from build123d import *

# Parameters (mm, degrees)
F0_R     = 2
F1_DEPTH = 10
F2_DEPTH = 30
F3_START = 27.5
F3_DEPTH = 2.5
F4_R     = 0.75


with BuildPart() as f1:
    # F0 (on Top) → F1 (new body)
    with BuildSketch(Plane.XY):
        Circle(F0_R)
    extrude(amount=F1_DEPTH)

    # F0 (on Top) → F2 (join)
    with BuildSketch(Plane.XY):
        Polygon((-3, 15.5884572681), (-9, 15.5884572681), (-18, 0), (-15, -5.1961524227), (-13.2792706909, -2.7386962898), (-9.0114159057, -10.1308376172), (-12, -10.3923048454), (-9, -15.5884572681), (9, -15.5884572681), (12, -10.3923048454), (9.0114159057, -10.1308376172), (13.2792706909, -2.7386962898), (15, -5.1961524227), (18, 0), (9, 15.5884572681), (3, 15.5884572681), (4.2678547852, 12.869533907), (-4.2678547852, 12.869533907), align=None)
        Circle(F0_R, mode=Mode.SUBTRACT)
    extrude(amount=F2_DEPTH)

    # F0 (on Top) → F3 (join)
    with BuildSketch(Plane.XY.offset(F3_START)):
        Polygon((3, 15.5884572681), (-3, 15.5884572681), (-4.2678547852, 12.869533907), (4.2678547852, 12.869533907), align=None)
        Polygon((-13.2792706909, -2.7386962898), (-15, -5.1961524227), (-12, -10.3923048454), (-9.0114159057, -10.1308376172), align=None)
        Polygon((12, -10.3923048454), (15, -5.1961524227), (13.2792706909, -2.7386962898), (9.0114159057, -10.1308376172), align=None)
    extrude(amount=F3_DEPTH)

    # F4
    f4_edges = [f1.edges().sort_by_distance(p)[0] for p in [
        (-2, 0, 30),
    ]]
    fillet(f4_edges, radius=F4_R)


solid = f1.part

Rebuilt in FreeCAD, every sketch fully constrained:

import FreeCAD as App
import Part
import Sketcher

V = App.Vector
Q = App.Units.Quantity


def edges_at(feature, points):
    """Names of the edges that pass closest to the given points."""
    edges = feature.Shape.Edges
    near = lambda p: min(range(len(edges)), key=lambda i: edges[i].distToShape(Part.Vertex(*p))[0])
    return sorted({f"Edge{near(p) + 1}" for p in points})

doc = App.newDocument("Part")
body = doc.addObject("PartDesign::Body", "Body")

sketch1 = doc.addObject("Sketcher::SketchObject", "Sketch")
body.addObject(sketch1)
sketch1.AttachmentSupport = (doc.XY_Plane, [""])
sketch1.MapMode = "FlatFace"
sketch1.addGeometry(Part.Circle(V(0, 0, 0), V(0, 0, 1), 2), False)
sketch1.addConstraint([
    Sketcher.Constraint("Coincident", 0, 3, -1, 1),
    Sketcher.Constraint("Diameter", 0, 4.0),
])
pad1 = doc.addObject("PartDesign::Pad", "Pad")
body.addObject(pad1)
pad1.Profile = sketch1
pad1.Length = 10

sketch2 = doc.addObject("Sketcher::SketchObject", "Sketch001")
body.addObject(sketch2)
sketch2.AttachmentSupport = (doc.XY_Plane, [""])
sketch2.MapMode = "FlatFace"
sketch2.addGeometry([
    Part.LineSegment(V(-3, 15.6, 0), V(-9, 15.6, 0)),
    Part.LineSegment(V(-9, 15.6, 0), V(-18, 0, 0)),
    Part.LineSegment(V(-18, 0, 0), V(-15, -5.2, 0)),
    Part.LineSegment(V(-15, -5.2, 0), V(-13.3, -2.7, 0)),
    Part.LineSegment(V(-13.3, -2.7, 0), V(-9, -10.1, 0)),
    Part.LineSegment(V(-9, -10.1, 0), V(-12, -10.4, 0)),
    Part.LineSegment(V(-12, -10.4, 0), V(-9, -15.6, 0)),
    Part.LineSegment(V(-9, -15.6, 0), V(9, -15.6, 0)),
    Part.LineSegment(V(9, -15.6, 0), V(12, -10.4, 0)),
    Part.LineSegment(V(12, -10.4, 0), V(9, -10.1, 0)),
    Part.LineSegment(V(9, -10.1, 0), V(13.3, -2.7, 0)),
    Part.LineSegment(V(13.3, -2.7, 0), V(15, -5.2, 0)),
    Part.LineSegment(V(15, -5.2, 0), V(18, 0, 0)),
    Part.LineSegment(V(18, 0, 0), V(9, 15.6, 0)),
    Part.LineSegment(V(9, 15.6, 0), V(3, 15.6, 0)),
    Part.LineSegment(V(3, 15.6, 0), V(4.3, 12.9, 0)),
    Part.LineSegment(V(4.3, 12.9, 0), V(-4.3, 12.9, 0)),
    Part.LineSegment(V(-4.3, 12.9, 0), V(-3, 15.6, 0)),
    Part.Circle(V(0, 0, 0), V(0, 0, 1), 2),
], False)
sketch2.addConstraint([
    Sketcher.Constraint("Coincident", 0, 2, 1, 1),
    Sketcher.Constraint("Coincident", 1, 2, 2, 1),
    Sketcher.Constraint("Coincident", 2, 2, 3, 1),
    Sketcher.Constraint("Coincident", 3, 2, 4, 1),
    Sketcher.Constraint("Coincident", 4, 2, 5, 1),
    Sketcher.Constraint("Coincident", 5, 2, 6, 1),
    Sketcher.Constraint("Coincident", 6, 2, 7, 1),
    Sketcher.Constraint("Coincident", 7, 2, 8, 1),
    Sketcher.Constraint("Coincident", 8, 2, 9, 1),
    Sketcher.Constraint("Coincident", 9, 2, 10, 1),
    Sketcher.Constraint("Coincident", 10, 2, 11, 1),
    Sketcher.Constraint("Coincident", 11, 2, 12, 1),
    Sketcher.Constraint("Coincident", 12, 2, 13, 1),
    Sketcher.Constraint("Coincident", 13, 2, 14, 1),
    Sketcher.Constraint("Coincident", 14, 2, 15, 1),
    Sketcher.Constraint("Coincident", 15, 2, 16, 1),
    Sketcher.Constraint("Coincident", 16, 2, 17, 1),
    Sketcher.Constraint("Coincident", 17, 2, 0, 1),
    Sketcher.Constraint("Horizontal", 0),
    Sketcher.Constraint("Horizontal", 7),
    Sketcher.Constraint("Horizontal", 14),
    Sketcher.Constraint("Horizontal", 16),
    Sketcher.Constraint("Coincident", 18, 3, -1, 1),
    Sketcher.Constraint("Symmetric", 0, 2, 7, 2, -1, 1),
    Sketcher.Constraint("Symmetric", 1, 2, 12, 2, -1, 1),
    Sketcher.Constraint("Symmetric", 6, 2, 13, 2, -1, 1),
    Sketcher.Constraint("Symmetric", 5, 2, 8, 2, -2),
    Sketcher.Constraint("Symmetric", 4, 2, 9, 2, -2),
    Sketcher.Constraint("Symmetric", 3, 2, 10, 2, -2),
    Sketcher.Constraint("Symmetric", 2, 2, 11, 2, -2),
    Sketcher.Constraint("PointOnObject", 1, 2, -1),
    Sketcher.Constraint("Parallel", 2, 4),
    Sketcher.Constraint("Parallel", 4, 6),
    Sketcher.Constraint("Parallel", 1, 8),
    Sketcher.Constraint("Parallel", 8, 10),
    Sketcher.Constraint("Equal", 0, 14),
    Sketcher.Constraint("Equal", 3, 5),
    Sketcher.Constraint("Equal", 2, 6),
    Sketcher.Constraint("Equal", 11, 15),
    Sketcher.Constraint("Equal", 15, 17),
    Sketcher.Constraint("Diameter", 18, 4.0),
    Sketcher.Constraint("DistanceX", 0, 2, 0, 1, 6.0),
    Sketcher.Constraint("DistanceX", 7, 1, 7, 2, 18.0),
    Sketcher.Constraint("Angle", 1, Q("-120 deg")),
    Sketcher.Constraint("Angle", 3, Q("55 deg")),
    Sketcher.Constraint("Angle", 15, Q("-65 deg")),
    Sketcher.Constraint("Distance", 1, 18.0),
    Sketcher.Constraint("Distance", 2, 6.0),
    Sketcher.Constraint("Distance", 3, 3.0),
])
pad2 = doc.addObject("PartDesign::Pad", "Pad001")
body.addObject(pad2)
pad2.Profile = sketch2
pad2.Length = 30

sketch3 = doc.addObject("Sketcher::SketchObject", "Sketch002")
body.addObject(sketch3)
sketch3.AttachmentSupport = (doc.XY_Plane, [""])
sketch3.MapMode = "FlatFace"
sketch3.AttachmentOffset = App.Placement(V(0, 0, 27.5), App.Rotation())
sketch3.addGeometry([
    Part.LineSegment(V(3, 15.6, 0), V(-3, 15.6, 0)),
    Part.LineSegment(V(-3, 15.6, 0), V(-4.3, 12.9, 0)),
    Part.LineSegment(V(-4.3, 12.9, 0), V(4.3, 12.9, 0)),
    Part.LineSegment(V(4.3, 12.9, 0), V(3, 15.6, 0)),
    Part.LineSegment(V(-13.3, -2.7, 0), V(-15, -5.2, 0)),
    Part.LineSegment(V(-15, -5.2, 0), V(-12, -10.4, 0)),
    Part.LineSegment(V(-12, -10.4, 0), V(-9, -10.1, 0)),
    Part.LineSegment(V(-9, -10.1, 0), V(-13.3, -2.7, 0)),
    Part.LineSegment(V(12, -10.4, 0), V(15, -5.2, 0)),
    Part.LineSegment(V(15, -5.2, 0), V(13.3, -2.7, 0)),
    Part.LineSegment(V(13.3, -2.7, 0), V(9, -10.1, 0)),
    Part.LineSegment(V(9, -10.1, 0), V(12, -10.4, 0)),
], False)
sketch3.addConstraint([
    Sketcher.Constraint("Coincident", 0, 2, 1, 1),
    Sketcher.Constraint("Coincident", 1, 2, 2, 1),
    Sketcher.Constraint("Coincident", 2, 2, 3, 1),
    Sketcher.Constraint("Coincident", 3, 2, 0, 1),
    Sketcher.Constraint("Coincident", 4, 2, 5, 1),
    Sketcher.Constraint("Coincident", 5, 2, 6, 1),
    Sketcher.Constraint("Coincident", 6, 2, 7, 1),
    Sketcher.Constraint("Coincident", 7, 2, 4, 1),
    Sketcher.Constraint("Coincident", 8, 2, 9, 1),
    Sketcher.Constraint("Coincident", 9, 2, 10, 1),
    Sketcher.Constraint("Coincident", 10, 2, 11, 1),
    Sketcher.Constraint("Coincident", 11, 2, 8, 1),
    Sketcher.Constraint("Horizontal", 0),
    Sketcher.Constraint("Horizontal", 2),
    Sketcher.Constraint("Symmetric", 4, 2, 8, 2, -2),
    Sketcher.Constraint("Symmetric", 7, 2, 9, 2, -2),
    Sketcher.Constraint("Symmetric", 6, 2, 10, 2, -2),
    Sketcher.Constraint("Symmetric", 5, 2, 11, 2, -2),
    Sketcher.Constraint("Parallel", 5, 7),
    Sketcher.Constraint("Equal", 1, 3),
    Sketcher.Constraint("Equal", 3, 4),
    Sketcher.Constraint("Equal", 4, 6),
    Sketcher.Constraint("DistanceX", 0, 2, 0, 1, 6.0),
    Sketcher.Constraint("Angle", 1, Q("-115 deg")),
    Sketcher.Constraint("Angle", 4, Q("-125 deg")),
    Sketcher.Constraint("Angle", 5, Q("-60 deg")),
    Sketcher.Constraint("Distance", 1, 3.0),
    Sketcher.Constraint("Distance", 5, 6.0),
    Sketcher.Constraint("DistanceX", 0, 2, -1, 1, 3.0),
    Sketcher.Constraint("DistanceX", 4, 2, -1, 1, 15.0),
    Sketcher.Constraint("DistanceY", 4, 2, 0, 2, 20.78461),
    Sketcher.Constraint("DistanceY", -1, 1, 0, 2, 15.588457),
])
pad3 = doc.addObject("PartDesign::Pad", "Pad002")
body.addObject(pad3)
pad3.Profile = sketch3
pad3.Length = 2.5
doc.recompute()

fillet = doc.addObject("PartDesign::Fillet", "Fillet")
body.addObject(fillet)
fillet.Base = (pad3, edges_at(pad3, [(-2, 0, 30)]))
fillet.Radius = 0.75

doc.recompute()
